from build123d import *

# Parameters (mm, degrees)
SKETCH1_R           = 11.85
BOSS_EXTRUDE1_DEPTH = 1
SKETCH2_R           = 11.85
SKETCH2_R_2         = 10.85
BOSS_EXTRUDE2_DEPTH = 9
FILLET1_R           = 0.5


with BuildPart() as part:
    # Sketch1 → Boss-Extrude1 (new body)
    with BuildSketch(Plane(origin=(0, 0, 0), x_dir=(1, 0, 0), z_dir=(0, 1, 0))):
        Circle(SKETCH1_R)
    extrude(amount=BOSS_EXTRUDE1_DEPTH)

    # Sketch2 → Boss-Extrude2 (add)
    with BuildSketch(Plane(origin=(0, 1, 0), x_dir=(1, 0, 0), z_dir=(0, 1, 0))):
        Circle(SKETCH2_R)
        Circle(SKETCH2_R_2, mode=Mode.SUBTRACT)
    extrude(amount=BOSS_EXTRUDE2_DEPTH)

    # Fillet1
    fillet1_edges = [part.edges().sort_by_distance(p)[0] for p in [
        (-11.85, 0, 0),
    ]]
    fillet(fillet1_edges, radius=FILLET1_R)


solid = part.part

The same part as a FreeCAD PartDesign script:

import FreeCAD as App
import Part
import Sketcher
from FreeCAD import Vector
Q = App.Units.Quantity


def edges_at(feature, points):
    """Names of the edges that pass closest to the given points."""
    edges = feature.Shape.Edges
    near = lambda p: min(range(len(edges)), key=lambda i: edges[i].distToShape(Part.Vertex(*p))[0])
    return sorted({f"Edge{near(p) + 1}" for p in points})

doc = App.newDocument("Part")
params = doc.addObject("Spreadsheet::Sheet", "Params")
for row, (alias, value) in enumerate([
    ("sketch1_diameter", "23.7 mm"),
    ("pad1_length", "1 mm"),
    ("sketch2_diameter", "23.7 mm"),
    ("sketch2_diameter2", "21.7 mm"),
    ("pad2_length", "9 mm"),
    ("fillet_radius", "0.5 mm"),
], start=1):
    params.set(f"A{row}", alias)
    params.set(f"B{row}", "=" + value)
    params.setAlias(f"B{row}", alias)

body = doc.addObject("PartDesign::Body", "Body")

sketch1 = body.newObject("Sketcher::SketchObject", "Sketch")
sketch1.AttachmentSupport = (doc.getObject("XZ_Plane"), [""])
sketch1.MapMode = "FlatFace"
sketch1.addGeometry(Part.Circle(Vector(0, 0, 0), Vector(0, 0, 1), 11.85), False)
sketch1.addConstraint([
    Sketcher.Constraint("Coincident", 0, 3, -1, 1),
    Sketcher.Constraint("Diameter", 0, Q("23.7 mm")),
])
sketch1.setExpression("Constraints[1]", "Params.sketch1_diameter")
pad1 = body.newObject("PartDesign::Pad", "Pad")
pad1.Profile = sketch1
pad1.setExpression("Length", "Params.pad1_length")
pad1.Reversed = True

sketch2 = body.newObject("Sketcher::SketchObject", "Sketch001")
sketch2.AttachmentSupport = (doc.getObject("XZ_Plane"), [""])
sketch2.MapMode = "FlatFace"
sketch2.AttachmentOffset = App.Placement(Vector(0, 0, -1), App.Rotation())
sketch2.addGeometry([
    Part.Circle(Vector(0, 0, 0), Vector(0, 0, 1), 11.85),
    Part.Circle(Vector(0, 0, 0), Vector(0, 0, 1), 10.85),
], False)
sketch2.addConstraint([
    Sketcher.Constraint("Coincident", 0, 3, -1, 1),
    Sketcher.Constraint("Coincident", 1, 3, -1, 1),
    Sketcher.Constraint("Diameter", 0, Q("23.7 mm")),
    Sketcher.Constraint("Diameter", 1, Q("21.7 mm")),
])
sketch2.setExpression("Constraints[2]", "Params.sketch2_diameter")
sketch2.setExpression("Constraints[3]", "Params.sketch2_diameter2")
pad2 = body.newObject("PartDesign::Pad", "Pad001")
pad2.Profile = sketch2
pad2.setExpression("Length", "Params.pad2_length")
pad2.Reversed = True
doc.recompute()

fillet = body.newObject("PartDesign::Fillet", "Fillet")
fillet.Base = (pad2, edges_at(pad2, [(-11.85, 0, 0)]))
fillet.setExpression("Radius", "Params.fillet_radius")

doc.recompute()
